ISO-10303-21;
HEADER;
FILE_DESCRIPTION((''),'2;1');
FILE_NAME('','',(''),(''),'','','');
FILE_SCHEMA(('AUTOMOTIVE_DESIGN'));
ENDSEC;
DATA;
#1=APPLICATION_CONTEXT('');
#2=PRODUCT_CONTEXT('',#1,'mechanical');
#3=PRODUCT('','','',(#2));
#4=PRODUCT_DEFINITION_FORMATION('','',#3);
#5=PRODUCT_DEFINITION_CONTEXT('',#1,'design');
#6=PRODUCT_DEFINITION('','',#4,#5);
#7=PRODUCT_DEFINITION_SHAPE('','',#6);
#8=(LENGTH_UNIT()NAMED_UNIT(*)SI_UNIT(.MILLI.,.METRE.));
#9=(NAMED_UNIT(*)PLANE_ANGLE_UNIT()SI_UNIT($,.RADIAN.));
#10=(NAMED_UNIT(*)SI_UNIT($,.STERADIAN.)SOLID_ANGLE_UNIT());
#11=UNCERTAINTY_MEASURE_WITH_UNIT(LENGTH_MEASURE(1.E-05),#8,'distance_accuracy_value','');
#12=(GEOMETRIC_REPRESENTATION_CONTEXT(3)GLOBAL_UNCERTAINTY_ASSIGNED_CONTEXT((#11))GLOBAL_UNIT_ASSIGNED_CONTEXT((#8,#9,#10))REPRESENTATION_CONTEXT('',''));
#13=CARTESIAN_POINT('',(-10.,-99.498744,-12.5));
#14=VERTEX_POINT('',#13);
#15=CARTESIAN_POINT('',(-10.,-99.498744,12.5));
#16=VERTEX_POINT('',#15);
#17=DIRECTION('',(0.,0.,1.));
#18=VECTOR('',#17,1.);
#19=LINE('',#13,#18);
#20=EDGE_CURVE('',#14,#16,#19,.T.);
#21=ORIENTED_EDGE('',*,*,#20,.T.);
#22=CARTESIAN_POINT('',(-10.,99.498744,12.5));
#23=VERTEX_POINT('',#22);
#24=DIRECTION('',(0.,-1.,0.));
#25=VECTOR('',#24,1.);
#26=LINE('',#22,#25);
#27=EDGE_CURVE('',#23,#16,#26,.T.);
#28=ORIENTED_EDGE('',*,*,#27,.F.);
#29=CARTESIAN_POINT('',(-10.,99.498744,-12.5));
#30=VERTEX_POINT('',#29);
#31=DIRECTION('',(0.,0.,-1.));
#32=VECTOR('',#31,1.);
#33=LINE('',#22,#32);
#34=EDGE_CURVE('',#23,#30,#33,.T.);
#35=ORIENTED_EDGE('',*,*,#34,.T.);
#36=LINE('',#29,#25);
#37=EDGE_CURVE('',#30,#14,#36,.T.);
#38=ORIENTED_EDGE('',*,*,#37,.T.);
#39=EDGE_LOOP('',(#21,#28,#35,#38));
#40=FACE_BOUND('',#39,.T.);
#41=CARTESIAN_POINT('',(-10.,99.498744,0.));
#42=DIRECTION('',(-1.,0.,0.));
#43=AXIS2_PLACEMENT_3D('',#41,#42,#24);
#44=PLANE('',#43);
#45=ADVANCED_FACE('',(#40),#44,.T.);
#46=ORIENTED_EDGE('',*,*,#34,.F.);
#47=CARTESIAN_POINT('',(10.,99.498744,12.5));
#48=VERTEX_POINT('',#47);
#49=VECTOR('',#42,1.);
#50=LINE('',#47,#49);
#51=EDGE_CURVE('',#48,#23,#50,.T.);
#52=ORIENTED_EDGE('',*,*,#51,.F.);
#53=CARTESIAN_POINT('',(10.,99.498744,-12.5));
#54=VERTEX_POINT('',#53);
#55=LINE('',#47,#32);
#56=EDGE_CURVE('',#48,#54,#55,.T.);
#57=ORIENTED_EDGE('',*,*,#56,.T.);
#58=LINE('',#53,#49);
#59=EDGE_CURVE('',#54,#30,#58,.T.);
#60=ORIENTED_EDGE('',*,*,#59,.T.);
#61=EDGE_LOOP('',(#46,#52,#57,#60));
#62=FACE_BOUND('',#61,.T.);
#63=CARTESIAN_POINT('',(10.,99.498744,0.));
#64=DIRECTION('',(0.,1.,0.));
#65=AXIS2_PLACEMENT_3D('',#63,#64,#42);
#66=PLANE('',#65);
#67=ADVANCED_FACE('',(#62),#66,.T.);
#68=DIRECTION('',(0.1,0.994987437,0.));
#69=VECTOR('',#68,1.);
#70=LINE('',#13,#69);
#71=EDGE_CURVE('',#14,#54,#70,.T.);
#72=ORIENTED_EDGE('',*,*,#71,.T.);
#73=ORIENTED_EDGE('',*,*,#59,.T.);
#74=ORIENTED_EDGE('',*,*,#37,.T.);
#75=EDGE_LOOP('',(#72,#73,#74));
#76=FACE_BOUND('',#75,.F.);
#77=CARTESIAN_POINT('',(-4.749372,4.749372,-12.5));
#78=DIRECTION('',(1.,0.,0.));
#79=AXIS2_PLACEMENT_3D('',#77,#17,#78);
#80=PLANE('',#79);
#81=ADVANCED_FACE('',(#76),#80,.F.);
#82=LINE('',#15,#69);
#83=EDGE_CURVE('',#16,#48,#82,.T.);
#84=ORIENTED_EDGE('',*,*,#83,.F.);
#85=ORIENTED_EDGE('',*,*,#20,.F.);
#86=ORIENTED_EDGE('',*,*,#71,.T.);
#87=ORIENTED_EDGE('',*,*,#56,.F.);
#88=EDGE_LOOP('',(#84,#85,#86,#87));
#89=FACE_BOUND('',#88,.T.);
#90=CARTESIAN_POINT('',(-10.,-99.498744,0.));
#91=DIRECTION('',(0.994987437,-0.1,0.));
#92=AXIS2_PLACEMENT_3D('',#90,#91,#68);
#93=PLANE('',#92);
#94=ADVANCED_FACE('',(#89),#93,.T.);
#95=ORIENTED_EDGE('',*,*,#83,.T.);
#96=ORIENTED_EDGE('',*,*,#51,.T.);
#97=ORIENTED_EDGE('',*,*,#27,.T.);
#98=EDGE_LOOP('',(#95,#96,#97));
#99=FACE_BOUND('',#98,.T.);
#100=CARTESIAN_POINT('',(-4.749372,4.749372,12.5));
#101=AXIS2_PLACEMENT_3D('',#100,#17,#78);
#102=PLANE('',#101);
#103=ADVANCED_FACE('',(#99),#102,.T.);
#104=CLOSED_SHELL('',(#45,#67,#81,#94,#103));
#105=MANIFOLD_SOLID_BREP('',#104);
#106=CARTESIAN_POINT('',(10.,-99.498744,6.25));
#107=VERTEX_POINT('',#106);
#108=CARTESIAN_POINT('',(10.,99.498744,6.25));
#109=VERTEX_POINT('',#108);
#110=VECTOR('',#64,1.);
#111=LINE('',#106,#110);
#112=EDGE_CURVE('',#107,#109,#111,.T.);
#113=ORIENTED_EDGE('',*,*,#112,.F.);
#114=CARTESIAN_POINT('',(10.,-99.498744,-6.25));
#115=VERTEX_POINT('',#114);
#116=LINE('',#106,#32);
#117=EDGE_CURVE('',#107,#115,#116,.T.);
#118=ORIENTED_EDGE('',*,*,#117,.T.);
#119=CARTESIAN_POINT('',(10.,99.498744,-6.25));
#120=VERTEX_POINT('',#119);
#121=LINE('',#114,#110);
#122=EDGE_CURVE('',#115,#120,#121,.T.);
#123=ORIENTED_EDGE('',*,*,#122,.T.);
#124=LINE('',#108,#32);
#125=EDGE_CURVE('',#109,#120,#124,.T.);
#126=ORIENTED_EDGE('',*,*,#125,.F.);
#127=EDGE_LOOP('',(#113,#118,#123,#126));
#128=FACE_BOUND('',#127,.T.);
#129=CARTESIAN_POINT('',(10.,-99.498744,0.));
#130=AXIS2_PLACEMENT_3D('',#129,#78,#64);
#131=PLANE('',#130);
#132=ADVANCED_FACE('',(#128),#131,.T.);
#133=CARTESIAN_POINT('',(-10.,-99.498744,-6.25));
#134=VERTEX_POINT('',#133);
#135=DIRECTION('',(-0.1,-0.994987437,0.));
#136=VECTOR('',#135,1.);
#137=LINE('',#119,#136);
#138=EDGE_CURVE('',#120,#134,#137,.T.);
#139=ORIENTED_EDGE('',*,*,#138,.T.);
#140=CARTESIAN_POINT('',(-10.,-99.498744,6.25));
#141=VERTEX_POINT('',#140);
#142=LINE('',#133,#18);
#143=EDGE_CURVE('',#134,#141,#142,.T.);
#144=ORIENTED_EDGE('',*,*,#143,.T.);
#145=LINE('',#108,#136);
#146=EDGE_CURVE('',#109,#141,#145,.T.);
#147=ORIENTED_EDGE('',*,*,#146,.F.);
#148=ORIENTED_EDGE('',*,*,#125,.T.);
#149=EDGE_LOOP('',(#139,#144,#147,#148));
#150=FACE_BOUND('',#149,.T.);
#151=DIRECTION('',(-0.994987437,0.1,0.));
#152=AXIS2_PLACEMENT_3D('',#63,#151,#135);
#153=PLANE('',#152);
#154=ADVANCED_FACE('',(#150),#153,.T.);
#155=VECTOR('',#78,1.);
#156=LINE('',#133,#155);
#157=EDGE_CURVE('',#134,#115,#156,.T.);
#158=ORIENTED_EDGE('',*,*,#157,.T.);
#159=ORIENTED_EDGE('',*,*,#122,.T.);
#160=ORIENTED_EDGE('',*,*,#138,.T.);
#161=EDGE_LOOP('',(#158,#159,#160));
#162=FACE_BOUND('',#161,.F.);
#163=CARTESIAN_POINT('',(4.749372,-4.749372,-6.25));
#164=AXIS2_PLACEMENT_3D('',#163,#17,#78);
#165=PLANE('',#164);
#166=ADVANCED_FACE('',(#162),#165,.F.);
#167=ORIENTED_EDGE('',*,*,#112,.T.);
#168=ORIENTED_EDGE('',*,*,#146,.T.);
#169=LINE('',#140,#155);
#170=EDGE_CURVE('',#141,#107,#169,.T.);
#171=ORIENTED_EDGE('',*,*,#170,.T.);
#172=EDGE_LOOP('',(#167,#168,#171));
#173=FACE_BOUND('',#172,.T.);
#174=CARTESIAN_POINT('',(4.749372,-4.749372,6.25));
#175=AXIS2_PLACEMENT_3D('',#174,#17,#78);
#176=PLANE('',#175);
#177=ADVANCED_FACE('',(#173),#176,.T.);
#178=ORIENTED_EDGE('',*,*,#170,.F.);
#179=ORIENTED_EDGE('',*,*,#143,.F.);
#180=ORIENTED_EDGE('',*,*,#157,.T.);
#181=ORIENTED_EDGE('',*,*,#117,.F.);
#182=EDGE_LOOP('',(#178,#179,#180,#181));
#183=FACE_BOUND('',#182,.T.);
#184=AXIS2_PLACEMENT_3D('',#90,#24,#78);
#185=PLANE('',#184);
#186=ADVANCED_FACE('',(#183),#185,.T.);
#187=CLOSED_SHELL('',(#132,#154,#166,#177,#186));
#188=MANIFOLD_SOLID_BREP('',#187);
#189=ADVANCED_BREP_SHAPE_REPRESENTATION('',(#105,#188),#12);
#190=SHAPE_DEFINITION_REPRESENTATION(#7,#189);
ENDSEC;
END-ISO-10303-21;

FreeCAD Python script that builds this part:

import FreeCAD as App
import Part
import Sketcher

V = App.Vector
Q = App.Units.Quantity

doc = App.newDocument("Part")
body = doc.addObject("PartDesign::Body", "Body")

# Sketch on XY plane
sketch1 = doc.addObject("Sketcher::SketchObject", "Sketch")
body.addObject(sketch1)
sketch1.AttachmentSupport = (doc.XY_Plane, [""])
sketch1.MapMode = "FlatFace"
sketch1.addGeometry([
    Part.LineSegment(V(-10, 99.498744, 0), V(-10, -99.498744, 0)),
    Part.LineSegment(V(-10, -99.498744, 0), V(10, 99.498744, 0)),
    Part.LineSegment(V(10, 99.498744, 0), V(-10, 99.498744, 0)),
], False)
sketch1.addConstraint([
    Sketcher.Constraint("Coincident", 0, 2, 1, 1),
    Sketcher.Constraint("Coincident", 1, 2, 2, 1),
    Sketcher.Constraint("Coincident", 2, 2, 0, 1),
    Sketcher.Constraint("Vertical", 0),
    Sketcher.Constraint("Horizontal", 2),
    Sketcher.Constraint("Symmetric", 0, 2, 1, 2, -1, 1),
    Sketcher.Constraint("DistanceX", 2, 2, 2, 1, Q("20 mm")),
    Sketcher.Constraint("Distance", 1, Q("200.000001 mm")),
])
pad1 = doc.addObject("PartDesign::Pad", "Pad")
body.addObject(pad1)
pad1.Profile = sketch1
pad1.Length = 25
pad1.Midplane = True
body2 = doc.addObject("PartDesign::Body", "Body001")

# Sketch on XY plane
sketch2 = doc.addObject("Sketcher::SketchObject", "Sketch001")
body2.addObject(sketch2)
sketch2.AttachmentSupport = (doc.getObject("XY_Plane001"), [""])
sketch2.MapMode = "FlatFace"
sketch2.addGeometry([
    Part.LineSegment(V(10, 99.498744, 0), V(-10, -99.498744, 0)),
    Part.LineSegment(V(-10, -99.498744, 0), V(10, -99.498744, 0)),
    Part.LineSegment(V(10, -99.498744, 0), V(10, 99.498744, 0)),
], False)
sketch2.addConstraint([
    Sketcher.Constraint("Coincident", 0, 2, 1, 1),
    Sketcher.Constraint("Coincident", 1, 2, 2, 1),
    Sketcher.Constraint("Coincident", 2, 2, 0, 1),
    Sketcher.Constraint("Horizontal", 1),
    Sketcher.Constraint("Vertical", 2),
    Sketcher.Constraint("Symmetric", 0, 2, 2, 2, -1, 1),
    Sketcher.Constraint("DistanceX", 1, 1, 1, 2, Q("20 mm")),
    Sketcher.Constraint("Distance", 0, Q("200.000001 mm")),
])
pad2 = doc.addObject("PartDesign::Pad", "Pad001")
body2.addObject(pad2)
pad2.Profile = sketch2
pad2.Length = 12.5
pad2.Midplane = True

doc.recompute()
